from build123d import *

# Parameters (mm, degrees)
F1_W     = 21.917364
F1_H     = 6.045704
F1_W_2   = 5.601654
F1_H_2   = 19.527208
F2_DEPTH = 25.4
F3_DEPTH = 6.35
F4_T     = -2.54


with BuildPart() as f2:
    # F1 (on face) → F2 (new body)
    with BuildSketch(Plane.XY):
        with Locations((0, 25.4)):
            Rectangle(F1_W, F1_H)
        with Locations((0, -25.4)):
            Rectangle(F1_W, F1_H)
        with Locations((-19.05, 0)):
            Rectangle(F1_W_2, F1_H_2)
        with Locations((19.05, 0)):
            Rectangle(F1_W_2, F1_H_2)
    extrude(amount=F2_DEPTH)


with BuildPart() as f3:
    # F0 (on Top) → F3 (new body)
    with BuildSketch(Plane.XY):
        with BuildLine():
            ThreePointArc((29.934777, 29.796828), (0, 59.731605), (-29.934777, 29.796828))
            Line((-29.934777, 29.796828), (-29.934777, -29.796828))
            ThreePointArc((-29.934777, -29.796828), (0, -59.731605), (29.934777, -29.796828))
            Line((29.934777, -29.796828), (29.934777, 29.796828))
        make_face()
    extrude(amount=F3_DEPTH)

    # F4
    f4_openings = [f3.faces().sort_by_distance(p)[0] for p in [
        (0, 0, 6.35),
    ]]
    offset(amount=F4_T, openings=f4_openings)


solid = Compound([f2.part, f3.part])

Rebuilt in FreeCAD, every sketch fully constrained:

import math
import FreeCAD as App
import Part
import Sketcher
Q = App.Units.Quantity


def faces_at(feature, points):
    """Names of the faces that lie closest to the given points."""
    faces = feature.Shape.Faces
    near = lambda p: min(range(len(faces)), key=lambda i: faces[i].distToShape(Part.Vertex(*p))[0])
    return sorted({f"Face{near(p) + 1}" for p in points})


def add_polygon(sketch, points):
    """Adds a closed chain of lines whose ends are joined by coincident constraints."""
    first, n = sketch.GeometryCount, len(points)
    for a, b in zip(points, points[1:] + points[:1]):
        sketch.addGeometry(Part.LineSegment(App.Vector(*a, 0), App.Vector(*b, 0)), False)
    for i in range(n):
        sketch.addConstraint(Sketcher.Constraint("Coincident", first + i, 2, first + (i + 1) % n, 1))

doc = App.newDocument("Part")
body = doc.addObject("PartDesign::Body", "Body")
body.AllowCompound = True

# Sketch on XY plane
sketch1 = body.newObject("Sketcher::SketchObject", "Sketch")
sketch1.AttachmentSupport = (doc.getObject("XY_Plane"), [""])
sketch1.MapMode = "FlatFace"
add_polygon(sketch1, [(-11, 28), (-11, 22), (11, 22), (11, 28)])  # lines 0-3
add_polygon(sketch1, [(-11, -22), (-11, -28), (11, -28), (11, -22)])  # lines 4-7
add_polygon(sketch1, [(-22, 10), (-22, -10), (-16, -10), (-16, 10)])  # lines 8-11
add_polygon(sketch1, [(16, 10), (16, -10), (22, -10), (22, 10)])  # lines 12-15
sketch1.addConstraint(Sketcher.Constraint("Vertical", 0))
sketch1.addConstraint(Sketcher.Constraint("Horizontal", 1))
sketch1.addConstraint(Sketcher.Constraint("Vertical", 2))
sketch1.addConstraint(Sketcher.Constraint("Horizontal", 3))
sketch1.addConstraint(Sketcher.Constraint("Vertical", 4))
sketch1.addConstraint(Sketcher.Constraint("Horizontal", 5))
sketch1.addConstraint(Sketcher.Constraint("Vertical", 6))
sketch1.addConstraint(Sketcher.Constraint("Horizontal", 7))
sketch1.addConstraint(Sketcher.Constraint("Vertical", 8))
sketch1.addConstraint(Sketcher.Constraint("Horizontal", 9))
sketch1.addConstraint(Sketcher.Constraint("Vertical", 10))
sketch1.addConstraint(Sketcher.Constraint("Horizontal", 11))
sketch1.addConstraint(Sketcher.Constraint("Vertical", 12))
sketch1.addConstraint(Sketcher.Constraint("Horizontal", 13))
sketch1.addConstraint(Sketcher.Constraint("Vertical", 14))
sketch1.addConstraint(Sketcher.Constraint("Horizontal", 15))
sketch1.addConstraint(Sketcher.Constraint("Symmetric", 2, 2, 4, 2, -1, 1))
sketch1.addConstraint(Sketcher.Constraint("Symmetric", 0, 2, 6, 2, -1, 1))
sketch1.addConstraint(Sketcher.Constraint("Symmetric", 10, 2, 12, 2, -1, 1))
sketch1.addConstraint(Sketcher.Constraint("Symmetric", 8, 2, 14, 2, -1, 1))
sketch1.addConstraint(Sketcher.Constraint("Horizontal", 9, 2, 12, 2))
sketch1.addConstraint(Sketcher.Constraint("Vertical", 3, 2, 4, 2))
sketch1.addConstraint(Sketcher.Constraint("DistanceY", 4, 2, 0, 2, Q("2 in")))
sketch1.addConstraint(Sketcher.Constraint("DistanceY", 8, 2, 8, 1, Q("19.527208 mm")))
sketch1.addConstraint(Sketcher.Constraint("DistanceX", 1, 1, 1, 2, Q("21.917364 mm")))
sketch1.addConstraint(Sketcher.Constraint("DistanceX", 9, 1, 9, 2, Q("5.601654 mm")))
sketch1.addConstraint(Sketcher.Constraint("DistanceY", 0, 2, 0, 1, Q("6.045704 mm")))
sketch1.addConstraint(Sketcher.Constraint("DistanceX", 8, 2, 6, 2, Q("32.809509 mm")))
pad1 = body.newObject("PartDesign::Pad", "Pad")
pad1.Profile = sketch1
pad1.Length = Q("1 in")
body2 = doc.addObject("PartDesign::Body", "Body001")

# Sketch on XY plane
sketch2 = body2.newObject("Sketcher::SketchObject", "Sketch001")
sketch2.AttachmentSupport = (doc.getObject("XY_Plane001"), [""])
sketch2.MapMode = "FlatFace"
sketch2.addGeometry(Part.ArcOfCircle(Part.Circle(App.Vector(0, 30, 0), App.Vector(0, 0, 1), 30), math.radians(0), math.radians(180)), False)
sketch2.addGeometry(Part.LineSegment(App.Vector(-30, 30, 0), App.Vector(-30, -30, 0)), False)
sketch2.addGeometry(Part.ArcOfCircle(Part.Circle(App.Vector(0, -30, 0), App.Vector(0, 0, 1), 30), math.radians(180), math.radians(360)), False)
sketch2.addGeometry(Part.LineSegment(App.Vector(30, -30, 0), App.Vector(30, 30, 0)), False)
sketch2.addConstraint(Sketcher.Constraint("Tangent", 0, 2, 1, 1))
sketch2.addConstraint(Sketcher.Constraint("Tangent", 1, 2, 2, 1))
sketch2.addConstraint(Sketcher.Constraint("Tangent", 2, 2, 3, 1))
sketch2.addConstraint(Sketcher.Constraint("Tangent", 3, 2, 0, 1))
sketch2.addConstraint(Sketcher.Constraint("Vertical", 1))
sketch2.addConstraint(Sketcher.Constraint("Vertical", 3))
sketch2.addConstraint(Sketcher.Constraint("Symmetric", 0, 3, 2, 3, -1, 1))
sketch2.addConstraint(Sketcher.Constraint("Radius", 0, Q("29.934777 mm")))
sketch2.addConstraint(Sketcher.Constraint("DistanceY", 1, 2, 1, 1, Q("59.593656 mm")))
pad2 = body2.newObject("PartDesign::Pad", "Pad001")
pad2.Profile = sketch2
pad2.Length = Q("0.25 in")
doc.recompute()

thickness = body2.newObject("PartDesign::Thickness", "Thickness")
thickness.Base = (pad2, faces_at(pad2, [(0, 0, 6.35)]))
thickness.Value = Q("0.1 in")
thickness.Reversed = True
thickness.Join = "Arc"

doc.recompute()
